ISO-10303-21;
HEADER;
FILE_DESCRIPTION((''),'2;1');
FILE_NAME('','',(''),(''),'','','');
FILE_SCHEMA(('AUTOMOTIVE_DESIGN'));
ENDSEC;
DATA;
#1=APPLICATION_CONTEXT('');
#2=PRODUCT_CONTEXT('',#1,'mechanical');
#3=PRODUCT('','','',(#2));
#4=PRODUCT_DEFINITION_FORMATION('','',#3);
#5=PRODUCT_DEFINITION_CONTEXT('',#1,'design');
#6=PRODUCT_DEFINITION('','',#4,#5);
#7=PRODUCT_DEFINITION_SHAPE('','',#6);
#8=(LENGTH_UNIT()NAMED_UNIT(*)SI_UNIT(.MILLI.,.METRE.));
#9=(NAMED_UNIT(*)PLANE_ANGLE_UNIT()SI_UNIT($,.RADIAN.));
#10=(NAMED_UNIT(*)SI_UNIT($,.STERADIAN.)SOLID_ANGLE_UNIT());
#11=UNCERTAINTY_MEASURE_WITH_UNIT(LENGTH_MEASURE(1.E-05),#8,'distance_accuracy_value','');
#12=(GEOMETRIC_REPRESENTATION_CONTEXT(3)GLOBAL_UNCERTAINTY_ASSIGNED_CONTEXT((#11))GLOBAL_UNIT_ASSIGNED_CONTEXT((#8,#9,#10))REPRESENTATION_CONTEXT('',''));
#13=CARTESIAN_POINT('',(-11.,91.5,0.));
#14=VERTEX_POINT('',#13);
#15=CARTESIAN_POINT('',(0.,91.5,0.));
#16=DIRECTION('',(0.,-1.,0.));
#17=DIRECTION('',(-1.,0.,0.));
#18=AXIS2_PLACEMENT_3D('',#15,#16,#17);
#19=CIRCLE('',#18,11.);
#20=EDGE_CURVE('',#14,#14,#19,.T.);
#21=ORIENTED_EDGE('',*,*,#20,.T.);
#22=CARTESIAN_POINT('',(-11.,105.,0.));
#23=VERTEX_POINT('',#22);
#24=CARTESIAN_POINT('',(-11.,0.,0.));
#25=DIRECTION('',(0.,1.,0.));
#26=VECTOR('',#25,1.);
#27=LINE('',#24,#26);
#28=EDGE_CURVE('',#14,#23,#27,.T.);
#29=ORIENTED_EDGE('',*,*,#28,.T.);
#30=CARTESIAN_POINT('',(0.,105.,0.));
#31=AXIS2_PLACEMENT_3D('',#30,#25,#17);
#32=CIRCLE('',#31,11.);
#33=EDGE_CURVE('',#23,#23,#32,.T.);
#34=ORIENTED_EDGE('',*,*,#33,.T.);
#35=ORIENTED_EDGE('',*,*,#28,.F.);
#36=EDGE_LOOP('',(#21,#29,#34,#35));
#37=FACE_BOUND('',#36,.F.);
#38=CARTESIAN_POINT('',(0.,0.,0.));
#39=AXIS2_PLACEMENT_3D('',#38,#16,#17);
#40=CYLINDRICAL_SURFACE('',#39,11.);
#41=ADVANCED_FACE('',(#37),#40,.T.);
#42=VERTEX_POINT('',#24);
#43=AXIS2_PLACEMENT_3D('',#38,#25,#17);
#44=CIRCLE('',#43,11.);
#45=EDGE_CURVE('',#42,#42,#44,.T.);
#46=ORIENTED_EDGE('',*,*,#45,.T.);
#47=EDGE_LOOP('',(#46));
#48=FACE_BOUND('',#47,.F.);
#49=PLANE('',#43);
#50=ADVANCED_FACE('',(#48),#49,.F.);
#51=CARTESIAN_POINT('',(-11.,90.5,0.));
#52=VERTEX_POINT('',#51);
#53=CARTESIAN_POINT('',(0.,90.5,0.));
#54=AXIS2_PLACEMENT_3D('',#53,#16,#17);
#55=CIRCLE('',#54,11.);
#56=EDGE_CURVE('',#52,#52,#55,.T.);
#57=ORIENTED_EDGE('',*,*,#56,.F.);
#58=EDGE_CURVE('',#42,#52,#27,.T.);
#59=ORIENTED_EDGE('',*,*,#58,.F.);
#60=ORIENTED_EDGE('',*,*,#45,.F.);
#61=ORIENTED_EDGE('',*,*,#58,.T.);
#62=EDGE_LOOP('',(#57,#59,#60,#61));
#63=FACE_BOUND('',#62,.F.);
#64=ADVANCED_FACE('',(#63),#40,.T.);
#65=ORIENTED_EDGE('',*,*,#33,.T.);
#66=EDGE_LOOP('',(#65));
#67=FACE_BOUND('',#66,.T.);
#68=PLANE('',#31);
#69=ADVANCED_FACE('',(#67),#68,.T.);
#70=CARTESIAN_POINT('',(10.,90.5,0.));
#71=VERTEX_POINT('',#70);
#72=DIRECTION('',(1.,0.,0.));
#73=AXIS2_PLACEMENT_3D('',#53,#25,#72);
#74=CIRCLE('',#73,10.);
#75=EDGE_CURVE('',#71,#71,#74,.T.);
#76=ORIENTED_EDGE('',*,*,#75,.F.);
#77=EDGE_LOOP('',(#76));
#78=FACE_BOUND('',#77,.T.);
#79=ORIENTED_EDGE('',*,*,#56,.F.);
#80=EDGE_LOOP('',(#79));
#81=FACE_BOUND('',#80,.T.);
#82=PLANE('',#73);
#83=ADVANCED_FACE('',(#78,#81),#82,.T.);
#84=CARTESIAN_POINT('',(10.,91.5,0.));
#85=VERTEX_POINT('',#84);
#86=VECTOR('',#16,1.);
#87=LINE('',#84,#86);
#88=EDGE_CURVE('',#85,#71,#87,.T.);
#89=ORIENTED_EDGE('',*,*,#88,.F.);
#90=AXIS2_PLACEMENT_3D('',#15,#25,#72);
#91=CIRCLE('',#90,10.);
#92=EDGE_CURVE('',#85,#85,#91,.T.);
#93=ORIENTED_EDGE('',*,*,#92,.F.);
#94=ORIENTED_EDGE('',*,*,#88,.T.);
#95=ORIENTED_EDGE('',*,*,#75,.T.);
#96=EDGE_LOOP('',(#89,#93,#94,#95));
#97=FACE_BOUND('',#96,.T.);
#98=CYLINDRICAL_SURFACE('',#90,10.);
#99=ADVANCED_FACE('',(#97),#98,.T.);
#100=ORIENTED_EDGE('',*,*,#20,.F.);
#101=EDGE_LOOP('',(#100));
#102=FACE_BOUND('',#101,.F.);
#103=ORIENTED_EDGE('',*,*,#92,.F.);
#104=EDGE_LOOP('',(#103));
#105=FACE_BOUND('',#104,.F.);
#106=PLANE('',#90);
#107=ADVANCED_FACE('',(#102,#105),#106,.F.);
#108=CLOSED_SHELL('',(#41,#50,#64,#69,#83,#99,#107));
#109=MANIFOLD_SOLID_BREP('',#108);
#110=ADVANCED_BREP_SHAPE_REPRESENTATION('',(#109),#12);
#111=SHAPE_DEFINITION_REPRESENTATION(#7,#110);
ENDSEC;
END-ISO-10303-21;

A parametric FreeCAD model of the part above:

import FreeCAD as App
import Part
import Sketcher

doc = App.newDocument("Part")
body = doc.addObject("PartDesign::Body", "Body")

# Sketch on XZ plane
sketch1 = doc.addObject("Sketcher::SketchObject", "Sketch")
body.addObject(sketch1)
sketch1.AttachmentSupport = (doc.XZ_Plane, [""])
sketch1.MapMode = "FlatFace"
sketch1.addGeometry(Part.Circle(App.Vector(0, 0, 0), App.Vector(0, 0, 1), 11), False)
sketch1.addConstraint(Sketcher.Constraint("Coincident", 0, 3, -1, 1))
sketch1.addConstraint(Sketcher.Constraint("Diameter", 0, 22.0))
pad1 = doc.addObject("PartDesign::Pad", "Pad")
body.addObject(pad1)
pad1.Profile = sketch1
pad1.Length = 105
pad1.Reversed = True

# Sketch on XZ plane
sketch2 = doc.addObject("Sketcher::SketchObject", "Sketch001")
body.addObject(sketch2)
sketch2.AttachmentSupport = (doc.XZ_Plane, [""])
sketch2.MapMode = "FlatFace"
sketch2.AttachmentOffset = App.Placement(App.Vector(0, 0, -91.5), App.Rotation())
sketch2.addGeometry(Part.Circle(App.Vector(0, 0, 0), App.Vector(0, 0, 1), 11), False)
sketch2.addGeometry(Part.Circle(App.Vector(0, 0, 0), App.Vector(0, 0, 1), 10), False)
sketch2.addConstraint(Sketcher.Constraint("Coincident", 0, 3, -1, 1))
sketch2.addConstraint(Sketcher.Constraint("Coincident", 1, 3, -1, 1))
sketch2.addConstraint(Sketcher.Constraint("Diameter", 1, 20.0))
sketch2.addConstraint(Sketcher.Constraint("Diameter", 0, 22.0))
pocket1 = doc.addObject("PartDesign::Pocket", "Pocket")
body.addObject(pocket1)
pocket1.Profile = sketch2
pocket1.Length = 1
pocket1.Reversed = True

doc.recompute()
